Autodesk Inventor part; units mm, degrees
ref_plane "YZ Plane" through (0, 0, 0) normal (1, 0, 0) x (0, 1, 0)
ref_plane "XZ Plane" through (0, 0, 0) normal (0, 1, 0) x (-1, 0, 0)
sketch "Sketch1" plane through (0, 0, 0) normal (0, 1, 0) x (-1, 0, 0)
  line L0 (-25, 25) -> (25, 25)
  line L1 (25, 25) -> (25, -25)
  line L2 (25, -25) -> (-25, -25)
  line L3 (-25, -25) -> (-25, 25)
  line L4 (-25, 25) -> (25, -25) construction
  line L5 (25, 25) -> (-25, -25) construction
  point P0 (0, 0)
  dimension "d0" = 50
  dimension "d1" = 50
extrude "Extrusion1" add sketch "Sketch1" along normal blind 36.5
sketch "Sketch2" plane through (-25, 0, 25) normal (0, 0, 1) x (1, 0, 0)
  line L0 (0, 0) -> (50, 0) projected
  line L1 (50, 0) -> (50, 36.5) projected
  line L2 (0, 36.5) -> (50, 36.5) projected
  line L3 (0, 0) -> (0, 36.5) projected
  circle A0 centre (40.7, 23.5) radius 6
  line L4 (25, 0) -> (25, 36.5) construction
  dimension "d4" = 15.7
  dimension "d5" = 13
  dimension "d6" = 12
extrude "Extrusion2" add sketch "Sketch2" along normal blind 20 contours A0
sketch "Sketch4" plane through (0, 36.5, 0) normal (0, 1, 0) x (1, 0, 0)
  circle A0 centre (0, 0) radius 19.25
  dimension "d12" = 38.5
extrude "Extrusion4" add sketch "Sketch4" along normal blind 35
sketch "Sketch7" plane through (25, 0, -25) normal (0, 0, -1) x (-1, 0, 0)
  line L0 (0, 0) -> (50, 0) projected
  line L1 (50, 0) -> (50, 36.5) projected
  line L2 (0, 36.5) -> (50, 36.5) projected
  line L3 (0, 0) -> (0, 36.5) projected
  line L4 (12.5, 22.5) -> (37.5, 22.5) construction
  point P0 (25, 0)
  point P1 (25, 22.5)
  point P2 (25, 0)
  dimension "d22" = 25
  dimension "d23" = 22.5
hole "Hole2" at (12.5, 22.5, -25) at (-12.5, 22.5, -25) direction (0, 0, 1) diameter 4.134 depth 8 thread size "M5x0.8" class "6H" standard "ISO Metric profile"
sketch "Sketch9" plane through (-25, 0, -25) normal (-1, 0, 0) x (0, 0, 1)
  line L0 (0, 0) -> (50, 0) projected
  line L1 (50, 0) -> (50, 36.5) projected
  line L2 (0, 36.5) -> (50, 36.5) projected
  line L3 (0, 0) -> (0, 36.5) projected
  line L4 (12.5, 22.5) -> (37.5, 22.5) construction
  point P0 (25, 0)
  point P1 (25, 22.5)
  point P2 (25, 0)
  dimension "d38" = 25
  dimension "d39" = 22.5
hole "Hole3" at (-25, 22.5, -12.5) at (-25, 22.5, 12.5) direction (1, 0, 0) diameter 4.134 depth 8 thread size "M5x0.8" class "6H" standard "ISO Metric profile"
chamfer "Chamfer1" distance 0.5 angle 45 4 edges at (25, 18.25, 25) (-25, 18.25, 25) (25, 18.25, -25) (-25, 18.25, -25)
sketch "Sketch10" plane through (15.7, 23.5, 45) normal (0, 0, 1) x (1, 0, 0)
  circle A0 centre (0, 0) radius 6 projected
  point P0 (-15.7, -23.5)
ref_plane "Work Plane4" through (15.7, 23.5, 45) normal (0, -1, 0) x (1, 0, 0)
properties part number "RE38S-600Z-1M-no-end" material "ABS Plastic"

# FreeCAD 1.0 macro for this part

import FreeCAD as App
import Part
import Sketcher


def edges_at(feature, points):
    """Names of the edges that pass closest to the given points."""
    edges = feature.Shape.Edges
    near = lambda p: min(range(len(edges)), key=lambda i: edges[i].distToShape(Part.Vertex(*p))[0])
    return sorted({f"Edge{near(p) + 1}" for p in points})

doc = App.newDocument("Part")
body = doc.addObject("PartDesign::Body", "Body")

sketch1 = body.newObject("Sketcher::SketchObject", "Sketch")
sketch1.AttachmentSupport = (doc.getObject("XZ_Plane"), [""])
sketch1.MapMode = "FlatFace"
sketch1.addGeometry(Part.LineSegment(App.Vector(-25, 25, 0), App.Vector(25, 25, 0)), False)
sketch1.addGeometry(Part.LineSegment(App.Vector(25, 25, 0), App.Vector(25, -25, 0)), False)
sketch1.addGeometry(Part.LineSegment(App.Vector(25, -25, 0), App.Vector(-25, -25, 0)), False)
sketch1.addGeometry(Part.LineSegment(App.Vector(-25, -25, 0), App.Vector(-25, 25, 0)), False)
sketch1.addConstraint(Sketcher.Constraint("Coincident", 0, 2, 1, 1))
sketch1.addConstraint(Sketcher.Constraint("Coincident", 1, 2, 2, 1))
sketch1.addConstraint(Sketcher.Constraint("Coincident", 2, 2, 3, 1))
sketch1.addConstraint(Sketcher.Constraint("Coincident", 3, 2, 0, 1))
sketch1.addConstraint(Sketcher.Constraint("Horizontal", 0))
sketch1.addConstraint(Sketcher.Constraint("Vertical", 1))
sketch1.addConstraint(Sketcher.Constraint("Horizontal", 2))
sketch1.addConstraint(Sketcher.Constraint("Vertical", 3))
sketch1.addConstraint(Sketcher.Constraint("Symmetric", 0, 2, 2, 2, -1, 1))
sketch1.addConstraint(Sketcher.Constraint("Equal", 2, 1))
sketch1.addConstraint(Sketcher.Constraint("DistanceX", 0, 1, 0, 2, 50.0))
pad1 = body.newObject("PartDesign::Pad", "Pad")
pad1.Profile = sketch1
pad1.Length = 36.5
pad1.Reversed = True

sketch2 = body.newObject("Sketcher::SketchObject", "Sketch001")
sketch2.AttachmentSupport = (doc.getObject("XY_Plane"), [""])
sketch2.MapMode = "FlatFace"
sketch2.AttachmentOffset = App.Placement(App.Vector(0, 0, 25), App.Rotation())
sketch2.addGeometry(Part.Circle(App.Vector(16, 24, 0), App.Vector(0, 0, 1), 6), False)
sketch2.addConstraint(Sketcher.Constraint("Diameter", 0, 12.0))
sketch2.addConstraint(Sketcher.Constraint("DistanceX", -1, 1, 0, 3, 15.7))
sketch2.addConstraint(Sketcher.Constraint("DistanceY", -1, 1, 0, 3, 23.5))
pad2 = body.newObject("PartDesign::Pad", "Pad001")
pad2.Profile = sketch2
pad2.Length = 20

sketch3 = body.newObject("Sketcher::SketchObject", "Sketch002")
sketch3.AttachmentSupport = (doc.getObject("XZ_Plane"), [""])
sketch3.MapMode = "FlatFace"
sketch3.AttachmentOffset = App.Placement(App.Vector(0, 0, -36.5), App.Rotation())
sketch3.addGeometry(Part.Circle(App.Vector(0, 0, 0), App.Vector(0, 0, 1), 19), False)
sketch3.addConstraint(Sketcher.Constraint("Coincident", 0, 3, -1, 1))
sketch3.addConstraint(Sketcher.Constraint("Diameter", 0, 38.5))
pad3 = body.newObject("PartDesign::Pad", "Pad002")
pad3.Profile = sketch3
pad3.Length = 35
pad3.Reversed = True

sketch4 = body.newObject("Sketcher::SketchObject", "Sketch003")
sketch4.AttachmentSupport = (doc.getObject("XY_Plane"), [""])
sketch4.MapMode = "FlatFace"
sketch4.AttachmentOffset = App.Placement(App.Vector(0, 0, -25), App.Rotation())
sketch4.addGeometry(Part.Circle(App.Vector(12.5, 22.5, 0), App.Vector(0, 0, 1), 2.1), False)
sketch4.addGeometry(Part.Circle(App.Vector(-12.5, 22.5, 0), App.Vector(0, 0, 1), 2.1), False)
sketch4.addConstraint(Sketcher.Constraint("Equal", 0, 1))
sketch4.addConstraint(Sketcher.Constraint("Symmetric", 0, 3, 1, 3, -2))
sketch4.addConstraint(Sketcher.Constraint("Diameter", 0, 4.134))
sketch4.addConstraint(Sketcher.Constraint("DistanceX", 1, 3, 0, 3, 25.0))
sketch4.addConstraint(Sketcher.Constraint("DistanceY", -1, 1, 0, 3, 22.5))
doc.recompute()
hole = body.newObject("PartDesign::Hole", "Hole")
hole.Profile = sketch4
hole.ThreadType = "None"
hole.Diameter = 4.134
hole.DepthType = "Dimension"
hole.Depth = 8
hole.DrillPoint = "Flat"
hole.Reversed = True

sketch5 = body.newObject("Sketcher::SketchObject", "Sketch004")
sketch5.AttachmentSupport = (doc.getObject("YZ_Plane"), [""])
sketch5.MapMode = "FlatFace"
sketch5.AttachmentOffset = App.Placement(App.Vector(0, 0, -25), App.Rotation())
sketch5.addGeometry(Part.Circle(App.Vector(22.5, -12.5, 0), App.Vector(0, 0, 1), 2.1), False)
sketch5.addGeometry(Part.Circle(App.Vector(22.5, 12.5, 0), App.Vector(0, 0, 1), 2.1), False)
sketch5.addConstraint(Sketcher.Constraint("Equal", 0, 1))
sketch5.addConstraint(Sketcher.Constraint("Symmetric", 0, 3, 1, 3, -1))
sketch5.addConstraint(Sketcher.Constraint("Diameter", 0, 4.134))
sketch5.addConstraint(Sketcher.Constraint("DistanceY", 0, 3, 1, 3, 25.0))
sketch5.addConstraint(Sketcher.Constraint("DistanceX", -1, 1, 0, 3, 22.5))
doc.recompute()
hole2 = body.newObject("PartDesign::Hole", "Hole001")
hole2.Profile = sketch5
hole2.ThreadType = "None"
hole2.Diameter = 4.134
hole2.DepthType = "Dimension"
hole2.Depth = 8
hole2.DrillPoint = "Flat"
hole2.Reversed = True
doc.recompute()

chamfer = body.newObject("PartDesign::Chamfer", "Chamfer")
chamfer.Base = (hole2, edges_at(hole2, [
    (25, 18.25, 25),
    (-25, 18.25, 25),
    (25, 18.25, -25),
    (-25, 18.25, -25),
]))
chamfer.Size = 0.5

doc.recompute()
